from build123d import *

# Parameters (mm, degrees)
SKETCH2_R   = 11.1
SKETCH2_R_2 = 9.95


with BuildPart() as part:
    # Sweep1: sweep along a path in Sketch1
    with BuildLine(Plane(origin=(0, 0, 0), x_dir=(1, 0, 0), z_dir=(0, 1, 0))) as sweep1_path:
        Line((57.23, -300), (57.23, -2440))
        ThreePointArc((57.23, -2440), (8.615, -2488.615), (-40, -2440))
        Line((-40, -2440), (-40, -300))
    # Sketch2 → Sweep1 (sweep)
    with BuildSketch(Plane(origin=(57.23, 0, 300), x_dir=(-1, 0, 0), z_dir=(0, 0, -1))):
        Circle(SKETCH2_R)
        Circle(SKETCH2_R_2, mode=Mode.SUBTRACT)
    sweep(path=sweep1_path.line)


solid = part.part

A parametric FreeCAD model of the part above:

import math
import FreeCAD as App
import Part
import Sketcher

V = App.Vector
Q = App.Units.Quantity

doc = App.newDocument("Part")
body = doc.addObject("PartDesign::Body", "Body")

sketch1 = body.newObject("Sketcher::SketchObject", "Sketch")
sketch1.AttachmentSupport = (doc.getObject("XY_Plane"), [""])
sketch1.MapMode = "FlatFace"
sketch1.AttachmentOffset = App.Placement(V(0, 0, 300), App.Rotation())
sketch1.addGeometry([
    Part.Circle(V(57, 0, 0), V(0, 0, 1), 11),
    Part.Circle(V(57, 0, 0), V(0, 0, 1), 10),
], False)
sketch1.addConstraint([
    Sketcher.Constraint("Coincident", 1, 3, 0, 3),
    Sketcher.Constraint("PointOnObject", 0, 3, -1),
    Sketcher.Constraint("Diameter", 0, Q("22.2 mm")),
    Sketcher.Constraint("Diameter", 1, Q("19.9 mm")),
    Sketcher.Constraint("DistanceX", -1, 1, 0, 3, Q("57.23 mm")),
])

sketch2 = body.newObject("Sketcher::SketchObject", "Sketch001")
sketch2.AttachmentSupport = (doc.getObject("XZ_Plane"), [""])
sketch2.MapMode = "FlatFace"
sketch2.addGeometry([
    Part.LineSegment(V(57, 300, 0), V(57, 2440, 0)),
    Part.ArcOfCircle(Part.Circle(V(9, 2440, 0), V(0, 0, 1), 49), math.radians(0), math.radians(180)),
    Part.LineSegment(V(-40, 2440, 0), V(-40, 300, 0)),
], False)
sketch2.addConstraint([
    Sketcher.Constraint("Tangent", 0, 2, 1, 1),
    Sketcher.Constraint("Tangent", 1, 2, 2, 1),
    Sketcher.Constraint("Vertical", 0),
    Sketcher.Constraint("Vertical", 2),
    Sketcher.Constraint("Horizontal", 0, 1, 2, 2),
    Sketcher.Constraint("DistanceY", 0, 1, 0, 2, Q("2140 mm")),
    Sketcher.Constraint("DistanceY", -1, 1, 1, 3, Q("2440 mm")),
    Sketcher.Constraint("DistanceX", 1, 2, -1, 1, Q("40 mm")),
    Sketcher.Constraint("Radius", 1, Q("48.615 mm")),
])
doc.recompute()

additivepipe = body.newObject("PartDesign::AdditivePipe", "AdditivePipe")
additivepipe.Profile = sketch1
additivepipe.Spine = (sketch2, ["Edge1", "Edge2", "Edge3"])

doc.recompute()
